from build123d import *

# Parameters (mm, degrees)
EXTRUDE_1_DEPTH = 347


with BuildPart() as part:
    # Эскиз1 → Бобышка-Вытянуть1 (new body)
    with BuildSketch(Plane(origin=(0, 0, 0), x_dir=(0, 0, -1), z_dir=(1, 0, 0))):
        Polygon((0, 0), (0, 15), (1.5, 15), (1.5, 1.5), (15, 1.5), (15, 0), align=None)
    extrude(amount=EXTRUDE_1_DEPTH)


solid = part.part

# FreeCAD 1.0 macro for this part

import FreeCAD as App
import Part
import Sketcher
Q = App.Units.Quantity

doc = App.newDocument("Part")
body = doc.addObject("PartDesign::Body", "Body")

sketch1 = body.newObject("Sketcher::SketchObject", "Sketch")
sketch1.AttachmentSupport = (doc.getObject("YZ_Plane"), [""])
sketch1.MapMode = "FlatFace"
sketch1.addGeometry(Part.LineSegment(App.Vector(15, 0, 0), App.Vector(0, 0, 0)), False)
sketch1.addGeometry(Part.LineSegment(App.Vector(0, 0, 0), App.Vector(0, -15, 0)), False)
sketch1.addGeometry(Part.LineSegment(App.Vector(0, -15, 0), App.Vector(1.5, -15, 0)), False)
sketch1.addGeometry(Part.LineSegment(App.Vector(1.5, -15, 0), App.Vector(1.5, -1.5, 0)), False)
sketch1.addGeometry(Part.LineSegment(App.Vector(1.5, -1.5, 0), App.Vector(15, -1.5, 0)), False)
sketch1.addGeometry(Part.LineSegment(App.Vector(15, -1.5, 0), App.Vector(15, 0, 0)), False)
sketch1.addConstraint(Sketcher.Constraint("Coincident", 0, 2, 1, 1))
sketch1.addConstraint(Sketcher.Constraint("Coincident", 1, 2, 2, 1))
sketch1.addConstraint(Sketcher.Constraint("Coincident", 2, 2, 3, 1))
sketch1.addConstraint(Sketcher.Constraint("Coincident", 3, 2, 4, 1))
sketch1.addConstraint(Sketcher.Constraint("Coincident", 4, 2, 5, 1))
sketch1.addConstraint(Sketcher.Constraint("Coincident", 5, 2, 0, 1))
sketch1.addConstraint(Sketcher.Constraint("Horizontal", 0))
sketch1.addConstraint(Sketcher.Constraint("Vertical", 1))
sketch1.addConstraint(Sketcher.Constraint("Horizontal", 2))
sketch1.addConstraint(Sketcher.Constraint("Vertical", 3))
sketch1.addConstraint(Sketcher.Constraint("Horizontal", 4))
sketch1.addConstraint(Sketcher.Constraint("Vertical", 5))
sketch1.addConstraint(Sketcher.Constraint("Coincident", 0, 2, -1, 1))
sketch1.addConstraint(Sketcher.Constraint("Equal", 0, 1))
sketch1.addConstraint(Sketcher.Constraint("Equal", 4, 3))
sketch1.addConstraint(Sketcher.Constraint("DistanceX", 0, 2, 0, 1, Q("15 mm")))
sketch1.addConstraint(Sketcher.Constraint("DistanceX", 2, 1, 2, 2, Q("1.5 mm")))
pad1 = body.newObject("PartDesign::Pad", "Pad")
pad1.Profile = sketch1
pad1.Length = 347

doc.recompute()
